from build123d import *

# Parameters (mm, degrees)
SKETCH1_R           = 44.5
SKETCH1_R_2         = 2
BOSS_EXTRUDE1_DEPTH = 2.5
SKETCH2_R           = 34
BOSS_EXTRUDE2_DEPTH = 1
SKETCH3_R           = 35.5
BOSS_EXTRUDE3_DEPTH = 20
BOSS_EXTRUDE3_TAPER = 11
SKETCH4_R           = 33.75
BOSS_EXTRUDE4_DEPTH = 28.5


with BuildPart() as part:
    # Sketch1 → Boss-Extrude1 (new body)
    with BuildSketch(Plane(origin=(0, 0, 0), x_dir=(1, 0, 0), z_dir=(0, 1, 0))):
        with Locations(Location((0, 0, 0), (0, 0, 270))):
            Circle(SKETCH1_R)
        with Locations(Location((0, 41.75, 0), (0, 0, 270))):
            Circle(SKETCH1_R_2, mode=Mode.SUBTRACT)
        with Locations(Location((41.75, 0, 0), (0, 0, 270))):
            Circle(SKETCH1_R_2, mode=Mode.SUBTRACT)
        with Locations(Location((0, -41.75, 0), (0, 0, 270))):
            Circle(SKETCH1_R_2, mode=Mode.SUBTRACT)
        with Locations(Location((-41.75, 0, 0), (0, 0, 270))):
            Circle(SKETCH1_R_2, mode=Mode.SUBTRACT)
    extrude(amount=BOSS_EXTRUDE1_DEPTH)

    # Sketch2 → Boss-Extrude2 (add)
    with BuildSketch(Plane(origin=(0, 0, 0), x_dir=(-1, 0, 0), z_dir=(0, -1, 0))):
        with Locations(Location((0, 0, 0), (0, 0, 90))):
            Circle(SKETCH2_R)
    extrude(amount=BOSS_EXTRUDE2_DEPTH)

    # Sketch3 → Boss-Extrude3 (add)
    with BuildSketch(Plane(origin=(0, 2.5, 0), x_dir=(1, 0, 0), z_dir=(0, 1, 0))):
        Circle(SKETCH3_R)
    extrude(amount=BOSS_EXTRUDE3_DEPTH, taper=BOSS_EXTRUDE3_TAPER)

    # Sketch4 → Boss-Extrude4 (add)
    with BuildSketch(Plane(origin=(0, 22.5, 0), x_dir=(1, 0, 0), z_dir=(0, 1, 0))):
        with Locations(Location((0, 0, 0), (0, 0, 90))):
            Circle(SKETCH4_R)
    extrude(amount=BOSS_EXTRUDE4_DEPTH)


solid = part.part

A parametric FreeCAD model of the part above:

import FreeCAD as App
import Part
import Sketcher
from FreeCAD import Vector
Q = App.Units.Quantity

doc = App.newDocument("Part")
body = doc.addObject("PartDesign::Body", "Body")

# Sketch on XZ plane
sketch1 = doc.addObject("Sketcher::SketchObject", "Sketch")
body.addObject(sketch1)
sketch1.AttachmentSupport = (doc.XZ_Plane, [""])
sketch1.MapMode = "FlatFace"
sketch1.addGeometry([
    Part.Circle(Vector(0, 0, 0), Vector(0, 0, 1), 44.5),  # 0
    Part.Circle(Vector(0, -41.75, 0), Vector(0, 0, 1), 2),  # 1
    Part.Circle(Vector(-41.75, 0, 0), Vector(0, 0, 1), 2),  # 2
    Part.Circle(Vector(41.75, 0, 0), Vector(0, 0, 1), 2),  # 3
    Part.Circle(Vector(0, 41.75, 0), Vector(0, 0, 1), 2),  # 4
], False)
sketch1.addConstraint([
    Sketcher.Constraint("Coincident", 0, 3, -1, 1),
    Sketcher.Constraint("Equal", 1, 2),
    Sketcher.Constraint("Equal", 2, 3),
    Sketcher.Constraint("Equal", 3, 4),
    Sketcher.Constraint("Symmetric", 2, 3, 3, 3, -1, 1),
    Sketcher.Constraint("Symmetric", 1, 3, 4, 3, -1, 1),
    Sketcher.Constraint("PointOnObject", 1, 3, -2),
    Sketcher.Constraint("PointOnObject", 2, 3, -1),
    Sketcher.Constraint("Diameter", 0, Q("89 mm")),
    Sketcher.Constraint("Diameter", 1, Q("4 mm")),
    Sketcher.Constraint("DistanceX", 2, 3, 3, 3, Q("83.5 mm")),
    Sketcher.Constraint("DistanceY", 1, 3, 4, 3, Q("83.5 mm")),
])
pad1 = doc.addObject("PartDesign::Pad", "Pad")
body.addObject(pad1)
pad1.Profile = sketch1
pad1.Length = 2.5
pad1.Reversed = True

# Sketch on XZ plane
sketch2 = doc.addObject("Sketcher::SketchObject", "Sketch001")
body.addObject(sketch2)
sketch2.AttachmentSupport = (doc.XZ_Plane, [""])
sketch2.MapMode = "FlatFace"
sketch2.addGeometry(Part.Circle(Vector(0, 0, 0), Vector(0, 0, 1), 34), False)
sketch2.addConstraint([
    Sketcher.Constraint("Coincident", 0, 3, -1, 1),
    Sketcher.Constraint("Diameter", 0, Q("68 mm")),
])
pad2 = doc.addObject("PartDesign::Pad", "Pad001")
body.addObject(pad2)
pad2.Profile = sketch2
pad2.Length = 1

# Sketch on XZ plane
sketch3 = doc.addObject("Sketcher::SketchObject", "Sketch002")
body.addObject(sketch3)
sketch3.AttachmentSupport = (doc.XZ_Plane, [""])
sketch3.MapMode = "FlatFace"
sketch3.AttachmentOffset = App.Placement(Vector(0, 0, -2.5), App.Rotation())
sketch3.addGeometry(Part.Circle(Vector(0, 0, 0), Vector(0, 0, 1), 35.5), False)
sketch3.addConstraint([
    Sketcher.Constraint("Coincident", 0, 3, -1, 1),
    Sketcher.Constraint("Diameter", 0, Q("71 mm")),
])
pad3 = doc.addObject("PartDesign::Pad", "Pad002")
body.addObject(pad3)
pad3.Profile = sketch3
pad3.Length = 20
pad3.Reversed = True
pad3.TaperAngle = -11

# Sketch on XZ plane
sketch4 = doc.addObject("Sketcher::SketchObject", "Sketch003")
body.addObject(sketch4)
sketch4.AttachmentSupport = (doc.XZ_Plane, [""])
sketch4.MapMode = "FlatFace"
sketch4.AttachmentOffset = App.Placement(Vector(0, 0, -22.5), App.Rotation())
sketch4.addGeometry(Part.Circle(Vector(0, 0, 0), Vector(0, 0, 1), 33.75), False)
sketch4.addConstraint([
    Sketcher.Constraint("Coincident", 0, 3, -1, 1),
    Sketcher.Constraint("Diameter", 0, Q("67.5 mm")),
])
pad4 = doc.addObject("PartDesign::Pad", "Pad003")
body.addObject(pad4)
pad4.Profile = sketch4
pad4.Length = 28.5
pad4.Reversed = True

doc.recompute()
